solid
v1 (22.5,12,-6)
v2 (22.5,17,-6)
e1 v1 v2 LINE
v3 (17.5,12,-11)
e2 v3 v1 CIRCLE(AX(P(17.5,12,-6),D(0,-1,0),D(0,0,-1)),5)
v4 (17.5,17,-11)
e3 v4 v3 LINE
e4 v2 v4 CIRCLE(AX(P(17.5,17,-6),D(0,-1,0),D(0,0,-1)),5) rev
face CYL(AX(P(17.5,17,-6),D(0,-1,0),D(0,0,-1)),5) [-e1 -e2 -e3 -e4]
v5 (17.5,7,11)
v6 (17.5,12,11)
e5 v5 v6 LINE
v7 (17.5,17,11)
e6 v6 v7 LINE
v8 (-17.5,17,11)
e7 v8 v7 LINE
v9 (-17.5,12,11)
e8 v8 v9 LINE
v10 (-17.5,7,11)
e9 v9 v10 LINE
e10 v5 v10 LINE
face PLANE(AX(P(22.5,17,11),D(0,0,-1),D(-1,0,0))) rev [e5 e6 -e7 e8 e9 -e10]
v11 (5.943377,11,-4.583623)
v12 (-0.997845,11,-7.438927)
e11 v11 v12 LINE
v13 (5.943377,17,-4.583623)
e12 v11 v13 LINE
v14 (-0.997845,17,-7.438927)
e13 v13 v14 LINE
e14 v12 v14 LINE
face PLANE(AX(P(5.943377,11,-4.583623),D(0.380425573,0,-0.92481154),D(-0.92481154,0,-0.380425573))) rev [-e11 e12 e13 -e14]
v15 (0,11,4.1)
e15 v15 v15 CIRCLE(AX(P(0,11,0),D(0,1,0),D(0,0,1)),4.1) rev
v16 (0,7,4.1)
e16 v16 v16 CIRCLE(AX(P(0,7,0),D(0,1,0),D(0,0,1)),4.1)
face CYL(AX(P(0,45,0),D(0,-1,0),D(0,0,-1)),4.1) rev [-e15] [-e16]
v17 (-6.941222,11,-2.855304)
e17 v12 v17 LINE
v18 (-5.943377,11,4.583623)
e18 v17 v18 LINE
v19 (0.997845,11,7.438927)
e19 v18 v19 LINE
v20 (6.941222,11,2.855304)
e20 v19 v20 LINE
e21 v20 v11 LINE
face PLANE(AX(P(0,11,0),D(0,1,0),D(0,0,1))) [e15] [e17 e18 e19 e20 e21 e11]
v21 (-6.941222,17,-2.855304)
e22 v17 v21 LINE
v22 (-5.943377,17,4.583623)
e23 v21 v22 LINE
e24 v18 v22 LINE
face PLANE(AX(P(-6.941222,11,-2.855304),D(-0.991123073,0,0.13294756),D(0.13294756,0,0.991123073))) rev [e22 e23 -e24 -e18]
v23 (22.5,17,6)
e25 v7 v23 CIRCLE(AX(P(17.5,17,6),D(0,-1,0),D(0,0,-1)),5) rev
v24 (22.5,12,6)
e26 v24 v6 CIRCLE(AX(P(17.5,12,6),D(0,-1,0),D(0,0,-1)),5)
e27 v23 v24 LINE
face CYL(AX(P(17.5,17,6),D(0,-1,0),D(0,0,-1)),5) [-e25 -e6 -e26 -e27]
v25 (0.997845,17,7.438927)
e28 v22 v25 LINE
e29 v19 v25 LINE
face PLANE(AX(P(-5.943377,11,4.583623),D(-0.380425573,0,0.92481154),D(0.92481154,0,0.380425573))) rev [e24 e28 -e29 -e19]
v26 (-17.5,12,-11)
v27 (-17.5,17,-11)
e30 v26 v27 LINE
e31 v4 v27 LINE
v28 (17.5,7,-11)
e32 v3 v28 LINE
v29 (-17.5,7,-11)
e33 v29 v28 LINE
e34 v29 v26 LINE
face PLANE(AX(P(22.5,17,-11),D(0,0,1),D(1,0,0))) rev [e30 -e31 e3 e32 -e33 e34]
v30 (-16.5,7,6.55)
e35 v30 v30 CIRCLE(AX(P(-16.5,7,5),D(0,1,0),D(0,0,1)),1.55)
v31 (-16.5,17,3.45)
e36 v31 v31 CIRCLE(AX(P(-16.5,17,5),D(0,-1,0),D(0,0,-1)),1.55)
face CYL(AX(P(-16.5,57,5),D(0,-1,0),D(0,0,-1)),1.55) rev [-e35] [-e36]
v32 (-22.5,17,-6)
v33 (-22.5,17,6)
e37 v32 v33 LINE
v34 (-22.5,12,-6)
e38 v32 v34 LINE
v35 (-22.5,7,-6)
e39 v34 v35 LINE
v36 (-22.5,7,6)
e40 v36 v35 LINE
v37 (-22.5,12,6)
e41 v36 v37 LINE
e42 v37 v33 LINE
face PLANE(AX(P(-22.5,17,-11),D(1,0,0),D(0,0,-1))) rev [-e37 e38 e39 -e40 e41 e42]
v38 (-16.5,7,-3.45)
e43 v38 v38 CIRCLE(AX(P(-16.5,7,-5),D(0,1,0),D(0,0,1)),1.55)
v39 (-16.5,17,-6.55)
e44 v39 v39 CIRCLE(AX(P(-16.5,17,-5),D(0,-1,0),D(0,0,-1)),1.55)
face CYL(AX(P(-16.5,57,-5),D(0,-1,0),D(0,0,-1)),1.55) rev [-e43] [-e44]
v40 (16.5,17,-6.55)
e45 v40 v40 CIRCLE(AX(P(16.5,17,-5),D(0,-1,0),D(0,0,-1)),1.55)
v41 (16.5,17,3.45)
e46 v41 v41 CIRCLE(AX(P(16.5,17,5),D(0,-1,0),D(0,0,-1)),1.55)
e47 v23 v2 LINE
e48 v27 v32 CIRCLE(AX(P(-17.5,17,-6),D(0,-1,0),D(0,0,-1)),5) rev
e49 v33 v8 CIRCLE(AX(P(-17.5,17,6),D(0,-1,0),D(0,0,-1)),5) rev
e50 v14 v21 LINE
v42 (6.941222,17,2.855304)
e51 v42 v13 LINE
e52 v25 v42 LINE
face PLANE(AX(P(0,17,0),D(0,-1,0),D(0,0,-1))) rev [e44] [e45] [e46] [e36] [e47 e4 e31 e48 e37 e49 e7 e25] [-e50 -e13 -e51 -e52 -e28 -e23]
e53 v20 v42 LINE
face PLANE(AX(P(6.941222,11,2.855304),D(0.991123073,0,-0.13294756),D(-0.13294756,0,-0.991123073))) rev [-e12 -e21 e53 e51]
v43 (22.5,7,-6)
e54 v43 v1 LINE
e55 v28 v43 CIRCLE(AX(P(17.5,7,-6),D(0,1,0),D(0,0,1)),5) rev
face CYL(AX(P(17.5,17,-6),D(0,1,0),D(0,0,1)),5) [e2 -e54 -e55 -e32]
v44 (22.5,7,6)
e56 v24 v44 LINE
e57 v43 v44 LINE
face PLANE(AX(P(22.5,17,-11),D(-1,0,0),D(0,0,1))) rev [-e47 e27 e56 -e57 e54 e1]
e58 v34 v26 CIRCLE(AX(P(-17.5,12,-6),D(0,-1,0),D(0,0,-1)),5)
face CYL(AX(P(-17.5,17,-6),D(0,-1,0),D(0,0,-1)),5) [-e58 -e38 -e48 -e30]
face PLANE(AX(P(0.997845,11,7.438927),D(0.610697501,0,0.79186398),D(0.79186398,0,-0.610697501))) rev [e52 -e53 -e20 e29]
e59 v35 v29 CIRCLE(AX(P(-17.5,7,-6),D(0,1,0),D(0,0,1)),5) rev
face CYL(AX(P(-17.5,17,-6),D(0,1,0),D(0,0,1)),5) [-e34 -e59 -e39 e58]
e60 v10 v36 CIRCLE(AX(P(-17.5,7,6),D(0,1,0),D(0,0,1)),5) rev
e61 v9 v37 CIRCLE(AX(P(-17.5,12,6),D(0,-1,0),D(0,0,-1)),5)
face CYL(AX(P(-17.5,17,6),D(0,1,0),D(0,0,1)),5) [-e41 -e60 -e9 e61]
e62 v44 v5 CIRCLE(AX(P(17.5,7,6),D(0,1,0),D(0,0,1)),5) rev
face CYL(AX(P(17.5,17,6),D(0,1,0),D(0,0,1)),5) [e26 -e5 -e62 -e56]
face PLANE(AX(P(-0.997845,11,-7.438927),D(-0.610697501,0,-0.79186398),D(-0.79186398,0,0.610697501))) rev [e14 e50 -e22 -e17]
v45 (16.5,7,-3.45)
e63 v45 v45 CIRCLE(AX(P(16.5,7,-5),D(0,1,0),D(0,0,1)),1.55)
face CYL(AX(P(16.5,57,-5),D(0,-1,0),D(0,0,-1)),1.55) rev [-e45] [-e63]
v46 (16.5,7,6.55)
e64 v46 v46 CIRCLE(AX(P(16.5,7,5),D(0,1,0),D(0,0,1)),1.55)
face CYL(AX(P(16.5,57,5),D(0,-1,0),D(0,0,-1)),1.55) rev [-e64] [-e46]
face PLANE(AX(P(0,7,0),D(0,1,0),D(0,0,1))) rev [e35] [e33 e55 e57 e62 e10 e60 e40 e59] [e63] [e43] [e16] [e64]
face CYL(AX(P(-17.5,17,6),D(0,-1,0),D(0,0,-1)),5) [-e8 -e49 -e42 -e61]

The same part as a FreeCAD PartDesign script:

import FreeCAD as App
import Part
import Sketcher
from FreeCAD import Vector


def edges_at(feature, points):
    """Names of the edges that pass closest to the given points."""
    edges = feature.Shape.Edges
    near = lambda p: min(range(len(edges)), key=lambda i: edges[i].distToShape(Part.Vertex(*p))[0])
    return sorted({f"Edge{near(p) + 1}" for p in points})

doc = App.newDocument("Part")
body = doc.addObject("PartDesign::Body", "Body")

sketch1 = doc.addObject("Sketcher::SketchObject", "Sketch")
body.addObject(sketch1)
sketch1.AttachmentSupport = (doc.XZ_Plane, [""])
sketch1.MapMode = "FlatFace"
sketch1.addGeometry([
    Part.Circle(Vector(0, 0, 0), Vector(0, 0, 1), 10),
    Part.Circle(Vector(0, 0, 0), Vector(0, 0, 1), 3.5),
], False)
sketch1.addConstraint([
    Sketcher.Constraint("Coincident", 0, 3, -1, 1),
    Sketcher.Constraint("Coincident", 1, 3, -1, 1),
    Sketcher.Constraint("Diameter", 0, 20.0),
    Sketcher.Constraint("Diameter", 1, 7.0),
])
pad1 = doc.addObject("PartDesign::Pad", "Pad")
body.addObject(pad1)
pad1.Profile = sketch1
pad1.Length = 12
pad1.Reversed = True

sketch2 = doc.addObject("Sketcher::SketchObject", "Sketch001")
body.addObject(sketch2)
sketch2.AttachmentSupport = (doc.XZ_Plane, [""])
sketch2.MapMode = "FlatFace"
sketch2.AttachmentOffset = App.Placement(Vector(0, 0, -12), App.Rotation())
sketch2.addGeometry([
    Part.LineSegment(Vector(-22.5, -11, 0), Vector(-22.5, 11, 0)),
    Part.LineSegment(Vector(-22.5, 11, 0), Vector(22.5, 11, 0)),
    Part.LineSegment(Vector(22.5, 11, 0), Vector(22.5, -11, 0)),
    Part.LineSegment(Vector(22.5, -11, 0), Vector(-22.5, -11, 0)),
], False)
sketch2.addConstraint([
    Sketcher.Constraint("Coincident", 0, 2, 1, 1),
    Sketcher.Constraint("Coincident", 1, 2, 2, 1),
    Sketcher.Constraint("Coincident", 2, 2, 3, 1),
    Sketcher.Constraint("Coincident", 3, 2, 0, 1),
    Sketcher.Constraint("Vertical", 0),
    Sketcher.Constraint("Horizontal", 1),
    Sketcher.Constraint("Vertical", 2),
    Sketcher.Constraint("Horizontal", 3),
    Sketcher.Constraint("Symmetric", 0, 2, 2, 2, -1, 1),
    Sketcher.Constraint("DistanceX", 1, 1, 1, 2, 45.0),
    Sketcher.Constraint("DistanceY", 0, 1, 0, 2, 22.0),
])
pad2 = doc.addObject("PartDesign::Pad", "Pad001")
body.addObject(pad2)
pad2.Profile = sketch2
pad2.Length = 5
pad2.Reversed = True
doc.recompute()

fillet = doc.addObject("PartDesign::Fillet", "Fillet")
body.addObject(fillet)
fillet.Base = (pad2, edges_at(pad2, [(22.5, 14.5, -11)]))
fillet.Radius = 5
doc.recompute()

fillet2 = doc.addObject("PartDesign::Fillet", "Fillet001")
body.addObject(fillet2)
fillet2.Base = (fillet, edges_at(fillet, [(22.5, 14.5, 11)]))
fillet2.Radius = 5
doc.recompute()

fillet3 = doc.addObject("PartDesign::Fillet", "Fillet002")
body.addObject(fillet3)
fillet3.Base = (fillet2, edges_at(fillet2, [(-22.5, 14.5, 11)]))
fillet3.Radius = 5
doc.recompute()

fillet4 = doc.addObject("PartDesign::Fillet", "Fillet003")
body.addObject(fillet4)
fillet4.Base = (fillet3, edges_at(fillet3, [(-22.5, 14.5, -11)]))
fillet4.Radius = 5

sketch3 = doc.addObject("Sketcher::SketchObject", "Sketch002")
body.addObject(sketch3)
sketch3.AttachmentSupport = (doc.XZ_Plane, [""])
sketch3.MapMode = "FlatFace"
sketch3.addGeometry(Part.Circle(Vector(0, 0, 0), Vector(0, 0, 1), 4.1), False)
sketch3.addConstraint([
    Sketcher.Constraint("Coincident", 0, 3, -1, 1),
    Sketcher.Constraint("Diameter", 0, 8.2),
])
pocket1 = doc.addObject("PartDesign::Pocket", "Pocket")
body.addObject(pocket1)
pocket1.Profile = sketch3
pocket1.Length = 45

sketch4 = doc.addObject("Sketcher::SketchObject", "Sketch003")
body.addObject(sketch4)
sketch4.AttachmentSupport = (doc.XZ_Plane, [""])
sketch4.MapMode = "FlatFace"
sketch4.AttachmentOffset = App.Placement(Vector(0, 0, -12), App.Rotation())
sketch4.addGeometry([
    Part.Circle(Vector(-16.5, 5, 0), Vector(0, 0, 1), 1.55),
    Part.Circle(Vector(-16.5, -5, 0), Vector(0, 0, 1), 1.55),
    Part.Circle(Vector(16.5, 5, 0), Vector(0, 0, 1), 1.55),
    Part.Circle(Vector(16.5, -5, 0), Vector(0, 0, 1), 1.55),
], False)
sketch4.addConstraint([
    Sketcher.Constraint("Equal", 0, 1),
    Sketcher.Constraint("Equal", 1, 2),
    Sketcher.Constraint("Equal", 2, 3),
    Sketcher.Constraint("Symmetric", 1, 3, 2, 3, -1, 1),
    Sketcher.Constraint("Symmetric", 0, 3, 3, 3, -1, 1),
    Sketcher.Constraint("Symmetric", 0, 3, 2, 3, -2),
    Sketcher.Constraint("Diameter", 0, 3.1),
    Sketcher.Constraint("DistanceY", -1, 1, 0, 3, 5.0),
    Sketcher.Constraint("DistanceX", 0, 3, 2, 3, 33.0),
])
pocket2 = doc.addObject("PartDesign::Pocket", "Pocket001")
body.addObject(pocket2)
pocket2.Profile = sketch4
pocket2.Length = 45

sketch5 = doc.addObject("Sketcher::SketchObject", "Sketch004")
body.addObject(sketch5)
sketch5.AttachmentSupport = (doc.XY_Plane, [""])
sketch5.MapMode = "FlatFace"
sketch5.AttachmentOffset = App.Placement(Vector(0, 0, 11), App.Rotation())
sketch5.addGeometry([
    Part.LineSegment(Vector(-11.056953, 12, 0), Vector(-11.056953, -12, 0)),
    Part.LineSegment(Vector(-11.056953, -12, 0), Vector(11.056953, -12, 0)),
    Part.LineSegment(Vector(11.056953, -12, 0), Vector(11.056953, 12, 0)),
    Part.LineSegment(Vector(11.056953, 12, 0), Vector(-11.056953, 12, 0)),
], False)
sketch5.addConstraint([
    Sketcher.Constraint("Coincident", 0, 2, 1, 1),
    Sketcher.Constraint("Coincident", 1, 2, 2, 1),
    Sketcher.Constraint("Coincident", 2, 2, 3, 1),
    Sketcher.Constraint("Coincident", 3, 2, 0, 1),
    Sketcher.Constraint("Vertical", 0),
    Sketcher.Constraint("Horizontal", 1),
    Sketcher.Constraint("Vertical", 2),
    Sketcher.Constraint("Horizontal", 3),
    Sketcher.Constraint("Symmetric", 0, 2, 2, 2, -1, 1),
    Sketcher.Constraint("DistanceY", 0, 2, 0, 1, 24.0),
    Sketcher.Constraint("DistanceX", 1, 1, 1, 2, 22.113905),
])
pocket3 = doc.addObject("PartDesign::Pocket", "Pocket002")
body.addObject(pocket3)
pocket3.Profile = sketch5
pocket3.Length = 70

sketch6 = doc.addObject("Sketcher::SketchObject", "Sketch005")
body.addObject(sketch6)
sketch6.AttachmentSupport = (doc.XZ_Plane, [""])
sketch6.MapMode = "FlatFace"
sketch6.AttachmentOffset = App.Placement(Vector(0, 0, -12), App.Rotation())
sketch6.addGeometry([
    Part.LineSegment(Vector(-22.5, 11, 0), Vector(-22.5, -11, 0)),
    Part.LineSegment(Vector(-22.5, -11, 0), Vector(22.5, -11, 0)),
    Part.LineSegment(Vector(22.5, -11, 0), Vector(22.5, 11, 0)),
    Part.LineSegment(Vector(22.5, 11, 0), Vector(-22.5, 11, 0)),
], False)
sketch6.addConstraint([
    Sketcher.Constraint("Coincident", 0, 2, 1, 1),
    Sketcher.Constraint("Coincident", 1, 2, 2, 1),
    Sketcher.Constraint("Coincident", 2, 2, 3, 1),
    Sketcher.Constraint("Coincident", 3, 2, 0, 1),
    Sketcher.Constraint("Vertical", 0),
    Sketcher.Constraint("Horizontal", 1),
    Sketcher.Constraint("Vertical", 2),
    Sketcher.Constraint("Horizontal", 3),
    Sketcher.Constraint("Symmetric", 0, 2, 2, 2, -1, 1),
    Sketcher.Constraint("DistanceX", 1, 1, 1, 2, 45.0),
    Sketcher.Constraint("DistanceY", 0, 2, 0, 1, 22.0),
])
pad3 = doc.addObject("PartDesign::Pad", "Pad002")
body.addObject(pad3)
pad3.Profile = sketch6
pad3.Length = 5
doc.recompute()

fillet5 = doc.addObject("PartDesign::Fillet", "Fillet004")
body.addObject(fillet5)
fillet5.Base = (pad3, edges_at(pad3, [(-22.5, 9.5, -11)]))
fillet5.Radius = 5
doc.recompute()

fillet6 = doc.addObject("PartDesign::Fillet", "Fillet005")
body.addObject(fillet6)
fillet6.Base = (fillet5, edges_at(fillet5, [(22.5, 9.5, -11)]))
fillet6.Radius = 5
doc.recompute()

fillet7 = doc.addObject("PartDesign::Fillet", "Fillet006")
body.addObject(fillet7)
fillet7.Base = (fillet6, edges_at(fillet6, [(22.5, 9.5, 11)]))
fillet7.Radius = 5
doc.recompute()

fillet8 = doc.addObject("PartDesign::Fillet", "Fillet007")
body.addObject(fillet8)
fillet8.Base = (fillet7, edges_at(fillet7, [(-22.5, 9.5, 11)]))
fillet8.Radius = 5

sketch7 = doc.addObject("Sketcher::SketchObject", "Sketch006")
body.addObject(sketch7)
sketch7.AttachmentSupport = (doc.XZ_Plane, [""])
sketch7.MapMode = "FlatFace"
sketch7.AttachmentOffset = App.Placement(Vector(0, 0, -17), App.Rotation())
sketch7.addGeometry([
    Part.Circle(Vector(-16.5, 5, 0), Vector(0, 0, 1), 1.55),
    Part.Circle(Vector(-16.5, -5, 0), Vector(0, 0, 1), 1.55),
    Part.Circle(Vector(16.5, 5, 0), Vector(0, 0, 1), 1.55),
    Part.Circle(Vector(16.5, -5, 0), Vector(0, 0, 1), 1.55),
    Part.Circle(Vector(0, 0, 0), Vector(0, 0, 1), 4.1),
], False)
sketch7.addConstraint([
    Sketcher.Constraint("Coincident", 4, 3, -1, 1),
    Sketcher.Constraint("Equal", 0, 1),
    Sketcher.Constraint("Equal", 1, 2),
    Sketcher.Constraint("Equal", 2, 3),
    Sketcher.Constraint("Symmetric", 1, 3, 2, 3, -1, 1),
    Sketcher.Constraint("Symmetric", 0, 3, 3, 3, -1, 1),
    Sketcher.Constraint("Symmetric", 0, 3, 2, 3, -2),
    Sketcher.Constraint("Diameter", 0, 3.1),
    Sketcher.Constraint("Diameter", 4, 8.2),
    Sketcher.Constraint("DistanceY", -1, 1, 0, 3, 5.0),
    Sketcher.Constraint("DistanceX", 0, 3, 2, 3, 33.0),
])
pocket4 = doc.addObject("PartDesign::Pocket", "Pocket003")
body.addObject(pocket4)
pocket4.Profile = sketch7
pocket4.Length = 15
pocket4.Reversed = True

sketch8 = doc.addObject("Sketcher::SketchObject", "Sketch007")
body.addObject(sketch8)
sketch8.AttachmentSupport = (doc.XZ_Plane, [""])
sketch8.MapMode = "FlatFace"
sketch8.AttachmentOffset = App.Placement(Vector(0, 0, -17), App.Rotation())
sketch8.addGeometry([
    Part.LineSegment(Vector(6.941222, 2.855304, 0), Vector(5.943377, -4.583623, 0)),
    Part.LineSegment(Vector(5.943377, -4.583623, 0), Vector(-0.997845, -7.438927, 0)),
    Part.LineSegment(Vector(-0.997845, -7.438927, 0), Vector(-6.941222, -2.855304, 0)),
    Part.LineSegment(Vector(-6.941222, -2.855304, 0), Vector(-5.943377, 4.583623, 0)),
    Part.LineSegment(Vector(-5.943377, 4.583623, 0), Vector(0.997845, 7.438927, 0)),
    Part.LineSegment(Vector(0.997845, 7.438927, 0), Vector(6.941222, 2.855304, 0)),
], False)
sketch8.addConstraint([
    Sketcher.Constraint("Coincident", 0, 2, 1, 1),
    Sketcher.Constraint("Coincident", 1, 2, 2, 1),
    Sketcher.Constraint("Coincident", 2, 2, 3, 1),
    Sketcher.Constraint("Coincident", 3, 2, 4, 1),
    Sketcher.Constraint("Coincident", 4, 2, 5, 1),
    Sketcher.Constraint("Coincident", 5, 2, 0, 1),
    Sketcher.Constraint("Symmetric", 0, 2, 3, 2, -1, 1),
    Sketcher.Constraint("Symmetric", 1, 2, 4, 2, -1, 1),
    Sketcher.Constraint("Symmetric", 2, 2, 5, 2, -1, 1),
    Sketcher.Constraint("Equal", 0, 1),
    Sketcher.Constraint("Equal", 1, 2),
    Sketcher.Constraint("DistanceX", 2, 2, 0, 2, 12.8846),
    Sketcher.Constraint("DistanceY", 0, 2, 2, 2, 1.728318),
    Sketcher.Constraint("DistanceY", 1, 2, 3, 2, 12.02255),
    Sketcher.Constraint("DistanceX", 1, 2, 4, 2, 1.99569),
])
pocket5 = doc.addObject("PartDesign::Pocket", "Pocket004")
body.addObject(pocket5)
pocket5.Profile = sketch8
pocket5.Length = 6
pocket5.Reversed = True

doc.recompute()
